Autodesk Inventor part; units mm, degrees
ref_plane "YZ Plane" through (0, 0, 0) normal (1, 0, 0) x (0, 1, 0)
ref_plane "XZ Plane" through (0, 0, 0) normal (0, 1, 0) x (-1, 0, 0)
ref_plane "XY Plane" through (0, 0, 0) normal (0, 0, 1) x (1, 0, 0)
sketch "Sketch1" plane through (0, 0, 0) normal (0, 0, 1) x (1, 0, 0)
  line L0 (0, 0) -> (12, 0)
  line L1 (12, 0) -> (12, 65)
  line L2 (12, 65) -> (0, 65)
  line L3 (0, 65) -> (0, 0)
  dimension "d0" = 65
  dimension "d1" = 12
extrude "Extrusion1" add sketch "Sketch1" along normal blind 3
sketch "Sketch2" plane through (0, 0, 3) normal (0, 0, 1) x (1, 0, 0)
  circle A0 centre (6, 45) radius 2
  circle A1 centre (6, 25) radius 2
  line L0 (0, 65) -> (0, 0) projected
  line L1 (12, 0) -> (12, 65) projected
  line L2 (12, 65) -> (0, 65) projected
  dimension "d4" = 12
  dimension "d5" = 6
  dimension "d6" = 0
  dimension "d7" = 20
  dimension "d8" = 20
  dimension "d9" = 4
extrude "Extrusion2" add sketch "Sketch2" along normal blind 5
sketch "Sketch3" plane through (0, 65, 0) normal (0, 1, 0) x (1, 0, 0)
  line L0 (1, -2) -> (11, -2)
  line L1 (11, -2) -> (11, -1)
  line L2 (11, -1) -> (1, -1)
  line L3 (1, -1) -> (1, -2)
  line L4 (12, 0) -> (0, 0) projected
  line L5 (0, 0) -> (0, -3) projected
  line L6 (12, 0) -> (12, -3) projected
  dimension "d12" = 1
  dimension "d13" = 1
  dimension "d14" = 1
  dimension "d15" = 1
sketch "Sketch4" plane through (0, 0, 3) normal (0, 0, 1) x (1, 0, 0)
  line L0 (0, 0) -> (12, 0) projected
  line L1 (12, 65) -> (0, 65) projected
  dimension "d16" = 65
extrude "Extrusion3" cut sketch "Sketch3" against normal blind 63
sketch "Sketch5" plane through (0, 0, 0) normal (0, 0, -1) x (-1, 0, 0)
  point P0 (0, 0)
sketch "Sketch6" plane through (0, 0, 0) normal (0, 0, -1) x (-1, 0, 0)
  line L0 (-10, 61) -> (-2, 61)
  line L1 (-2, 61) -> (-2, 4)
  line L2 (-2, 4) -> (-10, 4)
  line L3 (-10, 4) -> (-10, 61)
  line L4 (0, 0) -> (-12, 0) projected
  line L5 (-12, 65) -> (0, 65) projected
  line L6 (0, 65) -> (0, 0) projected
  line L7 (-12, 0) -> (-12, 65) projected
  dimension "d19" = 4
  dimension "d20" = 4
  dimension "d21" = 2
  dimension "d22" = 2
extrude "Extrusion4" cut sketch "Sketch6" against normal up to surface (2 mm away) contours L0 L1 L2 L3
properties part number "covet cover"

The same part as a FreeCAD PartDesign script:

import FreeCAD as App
import Part
import Sketcher
from FreeCAD import Vector
Q = App.Units.Quantity

doc = App.newDocument("Part")
body = doc.addObject("PartDesign::Body", "Body")

# Sketch on XY plane
sketch1 = body.newObject("Sketcher::SketchObject", "Sketch")
sketch1.AttachmentSupport = (doc.getObject("XY_Plane"), [""])
sketch1.MapMode = "FlatFace"
sketch1.addGeometry(Part.LineSegment(Vector(0, 65, 0), Vector(0, 0, 0)), False)
sketch1.addGeometry(Part.LineSegment(Vector(0, 0, 0), Vector(12, 0, 0)), False)
sketch1.addGeometry(Part.LineSegment(Vector(12, 0, 0), Vector(12, 65, 0)), False)
sketch1.addGeometry(Part.LineSegment(Vector(12, 65, 0), Vector(0, 65, 0)), False)
sketch1.addConstraint(Sketcher.Constraint("Coincident", 0, 2, 1, 1))
sketch1.addConstraint(Sketcher.Constraint("Coincident", 1, 2, 2, 1))
sketch1.addConstraint(Sketcher.Constraint("Coincident", 2, 2, 3, 1))
sketch1.addConstraint(Sketcher.Constraint("Coincident", 3, 2, 0, 1))
sketch1.addConstraint(Sketcher.Constraint("Vertical", 0))
sketch1.addConstraint(Sketcher.Constraint("Horizontal", 1))
sketch1.addConstraint(Sketcher.Constraint("Vertical", 2))
sketch1.addConstraint(Sketcher.Constraint("Horizontal", 3))
sketch1.addConstraint(Sketcher.Constraint("Coincident", 0, 2, -1, 1))
sketch1.addConstraint(Sketcher.Constraint("DistanceX", 1, 1, 1, 2, Q("12 mm")))
sketch1.addConstraint(Sketcher.Constraint("DistanceY", 0, 2, 0, 1, Q("65 mm")))
pad1 = body.newObject("PartDesign::Pad", "Pad")
pad1.Profile = sketch1
pad1.Length = 3

# Sketch on XY plane
sketch2 = body.newObject("Sketcher::SketchObject", "Sketch001")
sketch2.AttachmentSupport = (doc.getObject("XY_Plane"), [""])
sketch2.MapMode = "FlatFace"
sketch2.AttachmentOffset = App.Placement(Vector(0, 0, 3), App.Rotation())
sketch2.addGeometry(Part.Circle(Vector(6, 45, 0), Vector(0, 0, 1), 2), False)
sketch2.addGeometry(Part.Circle(Vector(6, 25, 0), Vector(0, 0, 1), 2), False)
sketch2.addConstraint(Sketcher.Constraint("Equal", 0, 1))
sketch2.addConstraint(Sketcher.Constraint("Vertical", 0, 3, 1, 3))
sketch2.addConstraint(Sketcher.Constraint("Diameter", 0, Q("4 mm")))
sketch2.addConstraint(Sketcher.Constraint("DistanceX", -1, 1, 0, 3, Q("6 mm")))
sketch2.addConstraint(Sketcher.Constraint("DistanceY", 1, 3, 0, 3, Q("20 mm")))
sketch2.addConstraint(Sketcher.Constraint("DistanceY", -1, 1, 0, 3, Q("45 mm")))
pad2 = body.newObject("PartDesign::Pad", "Pad001")
pad2.Profile = sketch2
pad2.Length = 5

# Sketch on XZ plane
sketch3 = body.newObject("Sketcher::SketchObject", "Sketch002")
sketch3.AttachmentSupport = (doc.getObject("XZ_Plane"), [""])
sketch3.MapMode = "FlatFace"
sketch3.AttachmentOffset = App.Placement(Vector(0, 0, -65), App.Rotation())
sketch3.addGeometry(Part.LineSegment(Vector(1, 1, 0), Vector(1, 2, 0)), False)
sketch3.addGeometry(Part.LineSegment(Vector(1, 2, 0), Vector(11, 2, 0)), False)
sketch3.addGeometry(Part.LineSegment(Vector(11, 2, 0), Vector(11, 1, 0)), False)
sketch3.addGeometry(Part.LineSegment(Vector(11, 1, 0), Vector(1, 1, 0)), False)
sketch3.addConstraint(Sketcher.Constraint("Coincident", 0, 2, 1, 1))
sketch3.addConstraint(Sketcher.Constraint("Coincident", 1, 2, 2, 1))
sketch3.addConstraint(Sketcher.Constraint("Coincident", 2, 2, 3, 1))
sketch3.addConstraint(Sketcher.Constraint("Coincident", 3, 2, 0, 1))
sketch3.addConstraint(Sketcher.Constraint("Vertical", 0))
sketch3.addConstraint(Sketcher.Constraint("Horizontal", 1))
sketch3.addConstraint(Sketcher.Constraint("Vertical", 2))
sketch3.addConstraint(Sketcher.Constraint("Horizontal", 3))
sketch3.addConstraint(Sketcher.Constraint("DistanceY", 0, 1, 0, 2, Q("1 mm")))
sketch3.addConstraint(Sketcher.Constraint("DistanceX", -1, 1, 0, 2, Q("1 mm")))
sketch3.addConstraint(Sketcher.Constraint("DistanceY", -1, 1, 2, 2, Q("1 mm")))
sketch3.addConstraint(Sketcher.Constraint("DistanceX", 1, 1, 1, 2, Q("10 mm")))
pocket1 = body.newObject("PartDesign::Pocket", "Pocket")
pocket1.Profile = sketch3
pocket1.Length = 63
pocket1.Reversed = True

# Sketch on XY plane
sketch4 = body.newObject("Sketcher::SketchObject", "Sketch003")
sketch4.AttachmentSupport = (doc.getObject("XY_Plane"), [""])
sketch4.MapMode = "FlatFace"
sketch4.addGeometry(Part.LineSegment(Vector(2, 61, 0), Vector(10, 61, 0)), False)
sketch4.addGeometry(Part.LineSegment(Vector(10, 61, 0), Vector(10, 4, 0)), False)
sketch4.addGeometry(Part.LineSegment(Vector(10, 4, 0), Vector(2, 4, 0)), False)
sketch4.addGeometry(Part.LineSegment(Vector(2, 4, 0), Vector(2, 61, 0)), False)
sketch4.addConstraint(Sketcher.Constraint("Coincident", 0, 2, 1, 1))
sketch4.addConstraint(Sketcher.Constraint("Coincident", 1, 2, 2, 1))
sketch4.addConstraint(Sketcher.Constraint("Coincident", 2, 2, 3, 1))
sketch4.addConstraint(Sketcher.Constraint("Coincident", 3, 2, 0, 1))
sketch4.addConstraint(Sketcher.Constraint("Horizontal", 0))
sketch4.addConstraint(Sketcher.Constraint("Vertical", 1))
sketch4.addConstraint(Sketcher.Constraint("Horizontal", 2))
sketch4.addConstraint(Sketcher.Constraint("Vertical", 3))
sketch4.addConstraint(Sketcher.Constraint("DistanceY", -1, 1, 1, 2, Q("4 mm")))
sketch4.addConstraint(Sketcher.Constraint("DistanceX", -1, 1, 2, 2, Q("2 mm")))
sketch4.addConstraint(Sketcher.Constraint("DistanceX", 0, 1, 0, 2, Q("8 mm")))
sketch4.addConstraint(Sketcher.Constraint("DistanceY", 1, 2, 1, 1, Q("57 mm")))
pocket2 = body.newObject("PartDesign::Pocket", "Pocket001")
pocket2.Profile = sketch4
pocket2.Length = 2
pocket2.Reversed = True

doc.recompute()
